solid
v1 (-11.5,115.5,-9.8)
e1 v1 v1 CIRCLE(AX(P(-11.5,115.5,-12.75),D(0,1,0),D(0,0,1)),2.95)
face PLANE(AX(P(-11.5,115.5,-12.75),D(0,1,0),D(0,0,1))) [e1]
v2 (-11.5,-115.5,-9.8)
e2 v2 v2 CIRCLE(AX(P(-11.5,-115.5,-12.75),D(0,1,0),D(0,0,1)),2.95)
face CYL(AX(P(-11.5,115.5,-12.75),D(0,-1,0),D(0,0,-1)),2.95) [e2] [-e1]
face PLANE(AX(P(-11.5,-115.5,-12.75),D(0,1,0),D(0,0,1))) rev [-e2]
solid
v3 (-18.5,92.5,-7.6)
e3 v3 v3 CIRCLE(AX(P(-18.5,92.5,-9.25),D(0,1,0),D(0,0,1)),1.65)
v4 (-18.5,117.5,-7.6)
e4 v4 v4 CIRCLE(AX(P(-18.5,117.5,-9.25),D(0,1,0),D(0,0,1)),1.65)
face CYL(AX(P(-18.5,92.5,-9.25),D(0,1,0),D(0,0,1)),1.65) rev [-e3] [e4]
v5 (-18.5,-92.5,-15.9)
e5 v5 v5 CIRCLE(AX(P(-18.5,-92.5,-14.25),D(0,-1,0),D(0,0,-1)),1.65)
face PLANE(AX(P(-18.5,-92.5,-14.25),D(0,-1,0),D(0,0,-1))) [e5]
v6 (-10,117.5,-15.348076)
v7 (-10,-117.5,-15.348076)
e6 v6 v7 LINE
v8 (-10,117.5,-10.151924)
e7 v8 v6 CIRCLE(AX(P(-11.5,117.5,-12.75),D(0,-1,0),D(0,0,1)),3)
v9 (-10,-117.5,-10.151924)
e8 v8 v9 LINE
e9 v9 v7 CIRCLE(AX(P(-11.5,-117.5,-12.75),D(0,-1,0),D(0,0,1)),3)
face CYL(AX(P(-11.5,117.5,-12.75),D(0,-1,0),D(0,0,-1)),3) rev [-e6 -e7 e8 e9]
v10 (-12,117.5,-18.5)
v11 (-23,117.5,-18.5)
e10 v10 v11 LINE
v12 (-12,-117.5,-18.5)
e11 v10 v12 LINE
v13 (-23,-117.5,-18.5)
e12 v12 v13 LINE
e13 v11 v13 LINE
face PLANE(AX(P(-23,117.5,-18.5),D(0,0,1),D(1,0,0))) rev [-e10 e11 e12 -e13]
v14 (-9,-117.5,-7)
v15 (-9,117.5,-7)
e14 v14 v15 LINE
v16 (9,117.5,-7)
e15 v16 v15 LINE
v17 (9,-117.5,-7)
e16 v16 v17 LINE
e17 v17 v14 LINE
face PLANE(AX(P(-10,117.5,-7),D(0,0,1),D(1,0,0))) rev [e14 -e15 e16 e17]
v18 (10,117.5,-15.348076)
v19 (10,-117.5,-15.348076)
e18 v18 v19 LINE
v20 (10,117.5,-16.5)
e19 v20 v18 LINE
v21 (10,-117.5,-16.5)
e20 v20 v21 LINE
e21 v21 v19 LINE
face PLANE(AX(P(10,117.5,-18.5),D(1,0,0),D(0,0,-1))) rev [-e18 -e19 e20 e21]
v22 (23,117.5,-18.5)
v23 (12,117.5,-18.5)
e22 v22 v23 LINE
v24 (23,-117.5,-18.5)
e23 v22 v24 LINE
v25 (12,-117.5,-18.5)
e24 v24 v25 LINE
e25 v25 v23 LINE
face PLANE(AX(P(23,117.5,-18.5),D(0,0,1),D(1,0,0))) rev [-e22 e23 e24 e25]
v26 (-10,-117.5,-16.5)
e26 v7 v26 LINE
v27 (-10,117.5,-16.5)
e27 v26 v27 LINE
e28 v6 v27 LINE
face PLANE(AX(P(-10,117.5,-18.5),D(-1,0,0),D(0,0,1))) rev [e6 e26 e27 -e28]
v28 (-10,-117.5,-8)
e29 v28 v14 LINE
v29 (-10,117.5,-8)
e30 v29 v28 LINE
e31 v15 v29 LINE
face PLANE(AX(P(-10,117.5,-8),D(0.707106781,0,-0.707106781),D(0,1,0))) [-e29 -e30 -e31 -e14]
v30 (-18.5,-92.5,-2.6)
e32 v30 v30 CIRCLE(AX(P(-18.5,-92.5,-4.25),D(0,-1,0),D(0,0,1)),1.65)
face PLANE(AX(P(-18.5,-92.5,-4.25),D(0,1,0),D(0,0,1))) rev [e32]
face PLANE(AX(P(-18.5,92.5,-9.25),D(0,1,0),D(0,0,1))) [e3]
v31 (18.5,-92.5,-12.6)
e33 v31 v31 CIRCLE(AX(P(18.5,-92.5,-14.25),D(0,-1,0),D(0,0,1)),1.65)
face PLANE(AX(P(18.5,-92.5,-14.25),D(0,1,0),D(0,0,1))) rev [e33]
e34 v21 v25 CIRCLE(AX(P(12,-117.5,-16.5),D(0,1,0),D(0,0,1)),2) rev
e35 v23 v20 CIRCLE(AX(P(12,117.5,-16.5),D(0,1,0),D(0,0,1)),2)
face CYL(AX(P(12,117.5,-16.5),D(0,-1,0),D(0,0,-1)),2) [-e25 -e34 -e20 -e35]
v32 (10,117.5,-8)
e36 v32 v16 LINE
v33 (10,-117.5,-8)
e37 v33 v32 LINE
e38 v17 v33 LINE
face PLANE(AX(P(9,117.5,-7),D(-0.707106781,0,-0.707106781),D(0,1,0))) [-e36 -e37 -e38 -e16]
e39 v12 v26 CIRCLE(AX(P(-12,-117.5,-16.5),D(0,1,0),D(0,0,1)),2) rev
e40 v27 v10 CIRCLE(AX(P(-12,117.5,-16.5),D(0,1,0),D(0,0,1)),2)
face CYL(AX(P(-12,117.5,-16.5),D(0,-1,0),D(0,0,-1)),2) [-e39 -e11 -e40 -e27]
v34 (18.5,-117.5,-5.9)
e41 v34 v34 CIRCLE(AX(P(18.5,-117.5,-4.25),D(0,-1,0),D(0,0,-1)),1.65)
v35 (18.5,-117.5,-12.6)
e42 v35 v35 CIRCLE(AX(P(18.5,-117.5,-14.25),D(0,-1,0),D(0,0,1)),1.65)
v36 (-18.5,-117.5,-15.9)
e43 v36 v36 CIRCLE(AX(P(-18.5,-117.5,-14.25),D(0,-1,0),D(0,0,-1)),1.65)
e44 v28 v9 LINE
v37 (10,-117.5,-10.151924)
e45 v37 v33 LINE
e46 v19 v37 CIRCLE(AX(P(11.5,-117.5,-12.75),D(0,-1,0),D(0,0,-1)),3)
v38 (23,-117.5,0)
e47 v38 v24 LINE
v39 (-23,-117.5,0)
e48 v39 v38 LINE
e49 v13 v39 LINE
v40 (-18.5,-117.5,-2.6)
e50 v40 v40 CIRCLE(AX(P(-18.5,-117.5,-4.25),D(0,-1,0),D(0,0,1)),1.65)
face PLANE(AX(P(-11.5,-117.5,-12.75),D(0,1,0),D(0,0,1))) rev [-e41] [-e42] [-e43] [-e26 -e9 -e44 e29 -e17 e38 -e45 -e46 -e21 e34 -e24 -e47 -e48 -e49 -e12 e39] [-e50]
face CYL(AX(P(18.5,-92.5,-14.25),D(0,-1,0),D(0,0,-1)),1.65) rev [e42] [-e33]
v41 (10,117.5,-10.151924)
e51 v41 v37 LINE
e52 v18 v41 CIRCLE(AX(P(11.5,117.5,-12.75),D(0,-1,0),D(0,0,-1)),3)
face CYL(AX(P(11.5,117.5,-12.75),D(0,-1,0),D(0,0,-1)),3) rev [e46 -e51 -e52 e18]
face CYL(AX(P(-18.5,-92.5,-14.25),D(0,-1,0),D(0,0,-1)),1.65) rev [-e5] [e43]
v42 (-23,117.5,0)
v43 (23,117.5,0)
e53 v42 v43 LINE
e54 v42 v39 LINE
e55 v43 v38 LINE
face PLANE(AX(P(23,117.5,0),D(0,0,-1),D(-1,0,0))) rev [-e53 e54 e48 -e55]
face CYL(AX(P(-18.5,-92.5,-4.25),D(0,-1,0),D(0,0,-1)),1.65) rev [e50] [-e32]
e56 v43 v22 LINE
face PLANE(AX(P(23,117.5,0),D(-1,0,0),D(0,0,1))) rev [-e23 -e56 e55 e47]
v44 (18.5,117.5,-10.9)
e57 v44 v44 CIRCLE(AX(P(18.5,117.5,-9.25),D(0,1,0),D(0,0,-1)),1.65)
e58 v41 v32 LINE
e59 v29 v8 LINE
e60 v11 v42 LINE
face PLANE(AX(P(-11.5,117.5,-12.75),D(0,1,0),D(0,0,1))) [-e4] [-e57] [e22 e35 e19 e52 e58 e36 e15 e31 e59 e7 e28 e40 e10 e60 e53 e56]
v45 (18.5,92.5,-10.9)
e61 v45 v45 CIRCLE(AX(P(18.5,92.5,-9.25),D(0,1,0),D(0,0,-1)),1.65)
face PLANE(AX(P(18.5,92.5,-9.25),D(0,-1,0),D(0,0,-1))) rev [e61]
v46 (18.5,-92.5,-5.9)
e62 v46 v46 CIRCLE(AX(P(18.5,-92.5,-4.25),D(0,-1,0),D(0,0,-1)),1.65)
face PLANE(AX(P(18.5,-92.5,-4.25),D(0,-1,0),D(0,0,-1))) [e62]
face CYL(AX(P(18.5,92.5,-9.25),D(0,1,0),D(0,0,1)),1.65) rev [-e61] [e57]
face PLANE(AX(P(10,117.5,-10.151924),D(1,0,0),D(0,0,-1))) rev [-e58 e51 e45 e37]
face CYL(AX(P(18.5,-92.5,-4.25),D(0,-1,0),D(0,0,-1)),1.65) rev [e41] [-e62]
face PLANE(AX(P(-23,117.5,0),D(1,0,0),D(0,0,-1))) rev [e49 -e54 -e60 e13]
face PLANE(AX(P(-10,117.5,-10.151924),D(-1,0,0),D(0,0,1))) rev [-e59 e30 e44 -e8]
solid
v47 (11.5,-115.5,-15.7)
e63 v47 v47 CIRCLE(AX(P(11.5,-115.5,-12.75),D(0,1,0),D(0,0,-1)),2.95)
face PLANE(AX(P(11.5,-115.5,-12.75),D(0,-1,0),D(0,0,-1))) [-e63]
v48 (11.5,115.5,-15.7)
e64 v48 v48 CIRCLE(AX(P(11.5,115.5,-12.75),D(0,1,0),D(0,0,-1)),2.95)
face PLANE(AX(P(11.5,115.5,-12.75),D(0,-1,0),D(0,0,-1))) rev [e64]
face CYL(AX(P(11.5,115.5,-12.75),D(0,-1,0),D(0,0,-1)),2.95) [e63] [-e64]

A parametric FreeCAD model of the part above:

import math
import FreeCAD as App
import Part
import Sketcher
from FreeCAD import Vector


def edges_at(feature, points):
    """Names of the edges that pass closest to the given points."""
    edges = feature.Shape.Edges
    near = lambda p: min(range(len(edges)), key=lambda i: edges[i].distToShape(Part.Vertex(*p))[0])
    return sorted({f"Edge{near(p) + 1}" for p in points})

doc = App.newDocument("Part")
params = doc.addObject("Spreadsheet::Sheet", "Params")
for row, (alias, value) in enumerate([
    ("sketch1_radius", "3 mm"),
    ("sketch1_width", "46 mm"),
    ("sketch1_width2", "13 mm"),
    ("sketch1_height", "18.5 mm"),
    ("pad1_length", "235 mm"),
    ("chamfer_size", "1 mm"),
    ("fillet_radius", "2 mm"),
    ("sketch2_diameter", "3.3 mm"),
    ("pocket1_length", "25 mm"),
    ("sketch3_diameter", "3.3 mm"),
    ("pocket2_length", "25 mm"),
    ("sketch4_diameter", "5.9 mm"),
    ("pad2_length", "231 mm"),
    ("sketch5_diameter", "5.9 mm"),
    ("pad3_length", "231 mm"),
], start=1):
    params.set(f"A{row}", alias)
    params.set(f"B{row}", "=" + value)
    params.setAlias(f"B{row}", alias)

body = doc.addObject("PartDesign::Body", "Body")

# Sketch on XZ plane
sketch1 = body.newObject("Sketcher::SketchObject", "Sketch")
sketch1.AttachmentSupport = (doc.getObject("XZ_Plane"), [""])
sketch1.MapMode = "FlatFace"
sketch1.addGeometry(Part.LineSegment(Vector(-23, 0, 0), Vector(23, 0, 0)), False)
sketch1.addGeometry(Part.LineSegment(Vector(23, 0, 0), Vector(23, -18.5, 0)), False)
sketch1.addGeometry(Part.LineSegment(Vector(23, -18.5, 0), Vector(10, -18.5, 0)), False)
sketch1.addGeometry(Part.LineSegment(Vector(10, -18.5, 0), Vector(10, -15.3, 0)), False)
sketch1.addGeometry(Part.ArcOfCircle(Part.Circle(Vector(11.5, -12.8, 0), Vector(0, 0, 1), 3), math.radians(-120), math.radians(120)), False)
sketch1.addGeometry(Part.LineSegment(Vector(10, -10.2, 0), Vector(10, -7, 0)), False)
sketch1.addGeometry(Part.LineSegment(Vector(10, -7, 0), Vector(-10, -7, 0)), False)
sketch1.addGeometry(Part.LineSegment(Vector(-10, -7, 0), Vector(-10, -10.2, 0)), False)
sketch1.addGeometry(Part.ArcOfCircle(Part.Circle(Vector(-11.5, -12.8, 0), Vector(0, 0, 1), 3), math.radians(60), math.radians(300)), False)
sketch1.addGeometry(Part.LineSegment(Vector(-10, -15.3, 0), Vector(-10, -18.5, 0)), False)
sketch1.addGeometry(Part.LineSegment(Vector(-10, -18.5, 0), Vector(-23, -18.5, 0)), False)
sketch1.addGeometry(Part.LineSegment(Vector(-23, -18.5, 0), Vector(-23, 0, 0)), False)
sketch1.addConstraint(Sketcher.Constraint("Coincident", 0, 2, 1, 1))
sketch1.addConstraint(Sketcher.Constraint("Coincident", 1, 2, 2, 1))
sketch1.addConstraint(Sketcher.Constraint("Coincident", 2, 2, 3, 1))
sketch1.addConstraint(Sketcher.Constraint("Coincident", 3, 2, 4, 1))
sketch1.addConstraint(Sketcher.Constraint("Coincident", 4, 2, 5, 1))
sketch1.addConstraint(Sketcher.Constraint("Coincident", 5, 2, 6, 1))
sketch1.addConstraint(Sketcher.Constraint("Coincident", 6, 2, 7, 1))
sketch1.addConstraint(Sketcher.Constraint("Coincident", 7, 2, 8, 1))
sketch1.addConstraint(Sketcher.Constraint("Coincident", 8, 2, 9, 1))
sketch1.addConstraint(Sketcher.Constraint("Coincident", 9, 2, 10, 1))
sketch1.addConstraint(Sketcher.Constraint("Coincident", 10, 2, 11, 1))
sketch1.addConstraint(Sketcher.Constraint("Coincident", 11, 2, 0, 1))
sketch1.addConstraint(Sketcher.Constraint("Horizontal", 0))
sketch1.addConstraint(Sketcher.Constraint("Vertical", 1))
sketch1.addConstraint(Sketcher.Constraint("Horizontal", 2))
sketch1.addConstraint(Sketcher.Constraint("Vertical", 3))
sketch1.addConstraint(Sketcher.Constraint("Vertical", 5))
sketch1.addConstraint(Sketcher.Constraint("Horizontal", 6))
sketch1.addConstraint(Sketcher.Constraint("Vertical", 7))
sketch1.addConstraint(Sketcher.Constraint("Vertical", 9))
sketch1.addConstraint(Sketcher.Constraint("Horizontal", 10))
sketch1.addConstraint(Sketcher.Constraint("Vertical", 11))
sketch1.addConstraint(Sketcher.Constraint("Equal", 4, 8))
sketch1.addConstraint(Sketcher.Constraint("Symmetric", 0, 2, 11, 2, -1, 1))
sketch1.addConstraint(Sketcher.Constraint("Symmetric", 4, 3, 8, 3, -2))
sketch1.addConstraint(Sketcher.Constraint("Symmetric", 2, 2, 9, 2, -2))
sketch1.addConstraint(Sketcher.Constraint("Horizontal", 4, 2, 7, 2))
sketch1.addConstraint(Sketcher.Constraint("Vertical", 3, 2, 4, 2))
sketch1.addConstraint(Sketcher.Constraint("Equal", 3, 5))
sketch1.addConstraint(Sketcher.Constraint("Radius", 4, 3.0))
sketch1.addConstraint(Sketcher.Constraint("DistanceX", 0, 1, 0, 2, 46.0))
sketch1.addConstraint(Sketcher.Constraint("DistanceX", 2, 2, 2, 1, 13.0))
sketch1.addConstraint(Sketcher.Constraint("DistanceY", 1, 2, 1, 1, 18.5))
sketch1.addConstraint(Sketcher.Constraint("DistanceY", 5, 2, -1, 1, 7.0))
sketch1.addConstraint(Sketcher.Constraint("DistanceX", 8, 3, 4, 3, 23.0))
sketch1.setExpression("Constraints[29]", "Params.sketch1_radius")
sketch1.setExpression("Constraints[30]", "Params.sketch1_width")
sketch1.setExpression("Constraints[31]", "Params.sketch1_width2")
sketch1.setExpression("Constraints[32]", "Params.sketch1_height")
pad1 = body.newObject("PartDesign::Pad", "Pad")
pad1.Profile = sketch1
pad1.setExpression("Length", "Params.pad1_length")
pad1.Midplane = True
doc.recompute()

chamfer = body.newObject("PartDesign::Chamfer", "Chamfer")
chamfer.Base = (pad1, edges_at(pad1, [(-10, 0, -7), (10, 0, -7)]))
chamfer.setExpression("Size", "Params.chamfer_size")
doc.recompute()

fillet = body.newObject("PartDesign::Fillet", "Fillet")
fillet.Base = (chamfer, edges_at(chamfer, [(-10, 0, -18.5), (10, 0, -18.5)]))
fillet.setExpression("Radius", "Params.fillet_radius")

# Sketch on XZ plane
sketch2 = body.newObject("Sketcher::SketchObject", "Sketch001")
sketch2.AttachmentSupport = (doc.getObject("XZ_Plane"), [""])
sketch2.MapMode = "FlatFace"
sketch2.AttachmentOffset = App.Placement(Vector(0, 0, -117.5), App.Rotation())
sketch2.addGeometry(Part.Circle(Vector(-18.5, -9.2, 0), Vector(0, 0, 1), 1.6), False)
sketch2.addGeometry(Part.Circle(Vector(18.5, -9.2, 0), Vector(0, 0, 1), 1.6), False)
sketch2.addConstraint(Sketcher.Constraint("Equal", 0, 1))
sketch2.addConstraint(Sketcher.Constraint("Symmetric", 0, 3, 1, 3, -2))
sketch2.addConstraint(Sketcher.Constraint("Diameter", 0, 3.3))
sketch2.addConstraint(Sketcher.Constraint("DistanceX", 0, 3, 1, 3, 37.0))
sketch2.addConstraint(Sketcher.Constraint("DistanceY", 0, 3, -1, 1, 9.25))
sketch2.setExpression("Constraints[2]", "Params.sketch2_diameter")
pocket1 = body.newObject("PartDesign::Pocket", "Pocket")
pocket1.Profile = sketch2
pocket1.setExpression("Length", "Params.pocket1_length")
pocket1.Reversed = True

# Sketch on XZ plane
sketch3 = body.newObject("Sketcher::SketchObject", "Sketch002")
sketch3.AttachmentSupport = (doc.getObject("XZ_Plane"), [""])
sketch3.MapMode = "FlatFace"
sketch3.AttachmentOffset = App.Placement(Vector(0, 0, 117.5), App.Rotation())
sketch3.addGeometry(Part.Circle(Vector(-18.5, -14.2, 0), Vector(0, 0, 1), 1.6), False)
sketch3.addGeometry(Part.Circle(Vector(-18.5, -4.2, 0), Vector(0, 0, 1), 1.6), False)
sketch3.addGeometry(Part.Circle(Vector(18.5, -14.2, 0), Vector(0, 0, 1), 1.6), False)
sketch3.addGeometry(Part.Circle(Vector(18.5, -4.2, 0), Vector(0, 0, 1), 1.6), False)
sketch3.addConstraint(Sketcher.Constraint("Equal", 0, 1))
sketch3.addConstraint(Sketcher.Constraint("Equal", 1, 2))
sketch3.addConstraint(Sketcher.Constraint("Equal", 2, 3))
sketch3.addConstraint(Sketcher.Constraint("Symmetric", 0, 3, 2, 3, -2))
sketch3.addConstraint(Sketcher.Constraint("Symmetric", 1, 3, 3, 3, -2))
sketch3.addConstraint(Sketcher.Constraint("Vertical", 0, 3, 1, 3))
sketch3.addConstraint(Sketcher.Constraint("Diameter", 0, 3.3))
sketch3.addConstraint(Sketcher.Constraint("DistanceY", 0, 3, 1, 3, 10.0))
sketch3.addConstraint(Sketcher.Constraint("DistanceX", 0, 3, 2, 3, 37.0))
sketch3.addConstraint(Sketcher.Constraint("DistanceY", 0, 3, -1, 1, 14.25))
sketch3.setExpression("Constraints[6]", "Params.sketch3_diameter")
pocket2 = body.newObject("PartDesign::Pocket", "Pocket001")
pocket2.Profile = sketch3
pocket2.setExpression("Length", "Params.pocket2_length")
body2 = doc.addObject("PartDesign::Body", "Body001")

# Sketch on XZ plane
sketch4 = body2.newObject("Sketcher::SketchObject", "Sketch003")
sketch4.AttachmentSupport = (doc.getObject("XZ_Plane001"), [""])
sketch4.MapMode = "FlatFace"
sketch4.addGeometry(Part.Circle(Vector(-11.5, -12.8, 0), Vector(0, 0, 1), 3), False)
sketch4.addConstraint(Sketcher.Constraint("Diameter", 0, 5.9))
sketch4.addConstraint(Sketcher.Constraint("DistanceX", 0, 3, -1, 1, 11.5))
sketch4.addConstraint(Sketcher.Constraint("DistanceY", 0, 3, -1, 1, 12.75))
sketch4.setExpression("Constraints[0]", "Params.sketch4_diameter")
pad2 = body2.newObject("PartDesign::Pad", "Pad001")
pad2.Profile = sketch4
pad2.setExpression("Length", "Params.pad2_length")
pad2.Midplane = True
body3 = doc.addObject("PartDesign::Body", "Body002")

# Sketch on XZ plane
sketch5 = body3.newObject("Sketcher::SketchObject", "Sketch004")
sketch5.AttachmentSupport = (doc.getObject("XZ_Plane002"), [""])
sketch5.MapMode = "FlatFace"
sketch5.addGeometry(Part.Circle(Vector(11.5, -12.8, 0), Vector(0, 0, 1), 3), False)
sketch5.addConstraint(Sketcher.Constraint("Diameter", 0, 5.9))
sketch5.addConstraint(Sketcher.Constraint("DistanceX", -1, 1, 0, 3, 11.5))
sketch5.addConstraint(Sketcher.Constraint("DistanceY", 0, 3, -1, 1, 12.75))
sketch5.setExpression("Constraints[0]", "Params.sketch5_diameter")
pad3 = body3.newObject("PartDesign::Pad", "Pad002")
pad3.Profile = sketch5
pad3.setExpression("Length", "Params.pad3_length")
pad3.Midplane = True

doc.recompute()
